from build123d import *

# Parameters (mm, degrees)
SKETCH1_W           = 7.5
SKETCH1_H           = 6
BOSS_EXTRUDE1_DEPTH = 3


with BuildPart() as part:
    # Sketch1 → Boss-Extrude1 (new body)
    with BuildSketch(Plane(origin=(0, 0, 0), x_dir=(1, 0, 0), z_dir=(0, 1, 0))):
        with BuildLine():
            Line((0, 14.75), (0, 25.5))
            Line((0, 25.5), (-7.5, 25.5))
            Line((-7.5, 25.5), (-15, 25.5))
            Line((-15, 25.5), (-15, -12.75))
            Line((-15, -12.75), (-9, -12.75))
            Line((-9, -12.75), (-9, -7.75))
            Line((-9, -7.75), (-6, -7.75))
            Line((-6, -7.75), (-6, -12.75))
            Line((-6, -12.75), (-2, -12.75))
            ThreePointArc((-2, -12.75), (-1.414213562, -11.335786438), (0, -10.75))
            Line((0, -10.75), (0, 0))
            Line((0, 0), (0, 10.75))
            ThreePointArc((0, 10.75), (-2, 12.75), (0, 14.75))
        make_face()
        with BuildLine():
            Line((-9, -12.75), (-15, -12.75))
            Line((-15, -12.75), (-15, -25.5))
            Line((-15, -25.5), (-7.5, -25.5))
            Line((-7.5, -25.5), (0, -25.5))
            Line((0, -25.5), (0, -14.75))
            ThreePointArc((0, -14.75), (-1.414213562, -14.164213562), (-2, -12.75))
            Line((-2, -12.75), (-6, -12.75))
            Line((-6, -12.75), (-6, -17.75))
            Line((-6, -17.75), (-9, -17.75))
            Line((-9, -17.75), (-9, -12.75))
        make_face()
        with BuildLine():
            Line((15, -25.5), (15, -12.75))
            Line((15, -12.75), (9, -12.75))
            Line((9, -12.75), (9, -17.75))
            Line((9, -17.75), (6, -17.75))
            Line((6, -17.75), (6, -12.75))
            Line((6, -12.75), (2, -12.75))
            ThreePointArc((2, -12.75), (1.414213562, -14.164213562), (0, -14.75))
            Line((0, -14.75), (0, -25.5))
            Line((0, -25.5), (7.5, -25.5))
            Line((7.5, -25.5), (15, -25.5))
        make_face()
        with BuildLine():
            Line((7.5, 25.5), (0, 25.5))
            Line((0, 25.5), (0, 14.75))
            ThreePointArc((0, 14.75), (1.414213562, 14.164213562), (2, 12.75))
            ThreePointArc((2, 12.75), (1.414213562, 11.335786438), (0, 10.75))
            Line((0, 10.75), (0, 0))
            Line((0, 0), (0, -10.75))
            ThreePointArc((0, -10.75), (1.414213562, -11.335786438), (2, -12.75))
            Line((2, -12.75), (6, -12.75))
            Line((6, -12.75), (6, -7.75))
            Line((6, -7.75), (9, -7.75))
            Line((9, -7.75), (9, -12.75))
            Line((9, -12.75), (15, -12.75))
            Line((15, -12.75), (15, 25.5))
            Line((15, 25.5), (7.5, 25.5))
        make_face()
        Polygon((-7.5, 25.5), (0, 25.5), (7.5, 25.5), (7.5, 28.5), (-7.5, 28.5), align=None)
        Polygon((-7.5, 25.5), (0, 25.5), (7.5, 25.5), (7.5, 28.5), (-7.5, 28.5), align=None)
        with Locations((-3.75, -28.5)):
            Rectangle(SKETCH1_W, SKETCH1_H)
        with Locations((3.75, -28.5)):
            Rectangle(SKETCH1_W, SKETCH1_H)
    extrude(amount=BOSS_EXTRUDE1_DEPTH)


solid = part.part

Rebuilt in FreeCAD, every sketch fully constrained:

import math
import FreeCAD as App
import Part
import Sketcher
from FreeCAD import Vector
Q = App.Units.Quantity


def add_polygon(sketch, points):
    """Adds a closed chain of lines whose ends are joined by coincident constraints."""
    first, n = sketch.GeometryCount, len(points)
    for a, b in zip(points, points[1:] + points[:1]):
        sketch.addGeometry(Part.LineSegment(App.Vector(*a, 0), App.Vector(*b, 0)), False)
    for i in range(n):
        sketch.addConstraint(Sketcher.Constraint("Coincident", first + i, 2, first + (i + 1) % n, 1))

doc = App.newDocument("Part")
body = doc.addObject("PartDesign::Body", "Body")

# Sketch on XZ plane
sketch1 = body.newObject("Sketcher::SketchObject", "Sketch")
sketch1.AttachmentSupport = (doc.getObject("XZ_Plane"), [""])
sketch1.MapMode = "FlatFace"
add_polygon(sketch1, [(-7.5, -25.5), (-15, -25.5), (-15, 25.5), (-7.5, 25.5), (-7.5, 31.5), (7.5, 31.5), (7.5, 25.5), (15, 25.5), (15, -25.5), (7.5, -25.5), (7.5, -28.5), (-7.5, -28.5)])  # lines 0-11
add_polygon(sketch1, [(-9, 7.8), (-6, 7.8), (-6, 17.8), (-9, 17.8)])  # lines 12-15
sketch1.addGeometry(Part.ArcOfCircle(Part.Circle(Vector(0, 12.7, 0), Vector(0, 0, 1), 2), math.radians(0), math.radians(90)), False)  # 16
sketch1.addGeometry(Part.ArcOfCircle(Part.Circle(Vector(0, 12.7, 0), Vector(0, 0, 1), 2), math.radians(90), math.radians(180)), False)  # 17
sketch1.addGeometry(Part.ArcOfCircle(Part.Circle(Vector(0, 12.8, 0), Vector(0, 0, 1), 2), math.radians(-180), math.radians(-90)), False)  # 18
sketch1.addGeometry(Part.ArcOfCircle(Part.Circle(Vector(0, 12.8, 0), Vector(0, 0, 1), 2), math.radians(-90), math.radians(0)), False)  # 19
add_polygon(sketch1, [(9, 17.8), (6, 17.8), (6, 7.8), (9, 7.8)])  # lines 20-23
sketch1.addGeometry(Part.ArcOfCircle(Part.Circle(Vector(0, -12.8, 0), Vector(0, 0, 1), 2), math.radians(90), math.radians(270)), False)  # 24
sketch1.addGeometry(Part.ArcOfCircle(Part.Circle(Vector(0, -12.7, 0), Vector(0, 0, 1), 2), math.radians(-90), math.radians(0)), False)  # 25
sketch1.addGeometry(Part.ArcOfCircle(Part.Circle(Vector(0, -12.8, 0), Vector(0, 0, 1), 2), math.radians(0), math.radians(90)), False)  # 26
sketch1.addConstraint([
    Sketcher.Constraint("Tangent", 16, 2, 17, 1),
    Sketcher.Constraint("Tangent", 17, 2, 18, 1),
    Sketcher.Constraint("Tangent", 18, 2, 19, 1),
    Sketcher.Constraint("Tangent", 19, 2, 16, 1),
    Sketcher.Constraint("Tangent", 24, 2, 25, 1),
    Sketcher.Constraint("Tangent", 25, 2, 26, 1),
    Sketcher.Constraint("Tangent", 26, 2, 24, 1),
    Sketcher.Constraint("Horizontal", 0),
    Sketcher.Constraint("Vertical", 1),
    Sketcher.Constraint("Horizontal", 2),
    Sketcher.Constraint("Vertical", 3),
    Sketcher.Constraint("Horizontal", 4),
    Sketcher.Constraint("Vertical", 5),
    Sketcher.Constraint("Horizontal", 6),
    Sketcher.Constraint("Vertical", 7),
    Sketcher.Constraint("Horizontal", 8),
    Sketcher.Constraint("Vertical", 9),
    Sketcher.Constraint("Horizontal", 10),
    Sketcher.Constraint("Vertical", 11),
    Sketcher.Constraint("Horizontal", 12),
    Sketcher.Constraint("Vertical", 13),
    Sketcher.Constraint("Horizontal", 14),
    Sketcher.Constraint("Vertical", 15),
    Sketcher.Constraint("Horizontal", 20),
    Sketcher.Constraint("Vertical", 21),
    Sketcher.Constraint("Horizontal", 22),
    Sketcher.Constraint("Vertical", 23),
    Sketcher.Constraint("Equal", 16, 17),
    Sketcher.Constraint("Equal", 19, 24),
    Sketcher.Constraint("Symmetric", 16, 3, 24, 3, -1, 1),
    Sketcher.Constraint("Symmetric", 0, 2, 6, 2, -1, 1),
    Sketcher.Constraint("Symmetric", 2, 2, 8, 2, -1, 1),
    Sketcher.Constraint("Symmetric", 2, 2, 5, 2, -2),
    Sketcher.Constraint("Symmetric", 17, 2, 19, 2, -2),
    Sketcher.Constraint("Symmetric", 13, 2, 20, 2, -2),
    Sketcher.Constraint("Symmetric", 15, 2, 22, 2, -2),
    Sketcher.Constraint("PointOnObject", 16, 2, -2),
    Sketcher.Constraint("PointOnObject", 18, 2, -2),
    Sketcher.Constraint("PointOnObject", 24, 2, -2),
    Sketcher.Constraint("PointOnObject", 26, 2, -2),
    Sketcher.Constraint("Horizontal", 19, 3, 17, 2),
    Sketcher.Constraint("Horizontal", 26, 3, 25, 2),
    Sketcher.Constraint("Vertical", 3, 2, 10, 2),
    Sketcher.Constraint("Equal", 22, 9),
    Sketcher.Constraint("Radius", 16, Q("2 mm")),
    Sketcher.Constraint("DistanceX", 4, 1, 4, 2, Q("15 mm")),
    Sketcher.Constraint("DistanceX", 12, 1, 12, 2, Q("3 mm")),
    Sketcher.Constraint("DistanceY", 1, 1, 1, 2, Q("51 mm")),
    Sketcher.Constraint("DistanceY", 3, 1, 3, 2, Q("6 mm")),
    Sketcher.Constraint("DistanceY", 13, 1, 13, 2, Q("10 mm")),
    Sketcher.Constraint("DistanceX", 0, 2, 0, 1, Q("7.5 mm")),
    Sketcher.Constraint("DistanceX", 12, 2, -1, 1, Q("6 mm")),
    Sketcher.Constraint("DistanceY", 12, 2, 16, 3, Q("5 mm")),
    Sketcher.Constraint("DistanceY", 24, 3, 16, 3, Q("25.5 mm")),
])
pad1 = body.newObject("PartDesign::Pad", "Pad")
pad1.Profile = sketch1
pad1.Length = 3
pad1.Reversed = True

doc.recompute()
